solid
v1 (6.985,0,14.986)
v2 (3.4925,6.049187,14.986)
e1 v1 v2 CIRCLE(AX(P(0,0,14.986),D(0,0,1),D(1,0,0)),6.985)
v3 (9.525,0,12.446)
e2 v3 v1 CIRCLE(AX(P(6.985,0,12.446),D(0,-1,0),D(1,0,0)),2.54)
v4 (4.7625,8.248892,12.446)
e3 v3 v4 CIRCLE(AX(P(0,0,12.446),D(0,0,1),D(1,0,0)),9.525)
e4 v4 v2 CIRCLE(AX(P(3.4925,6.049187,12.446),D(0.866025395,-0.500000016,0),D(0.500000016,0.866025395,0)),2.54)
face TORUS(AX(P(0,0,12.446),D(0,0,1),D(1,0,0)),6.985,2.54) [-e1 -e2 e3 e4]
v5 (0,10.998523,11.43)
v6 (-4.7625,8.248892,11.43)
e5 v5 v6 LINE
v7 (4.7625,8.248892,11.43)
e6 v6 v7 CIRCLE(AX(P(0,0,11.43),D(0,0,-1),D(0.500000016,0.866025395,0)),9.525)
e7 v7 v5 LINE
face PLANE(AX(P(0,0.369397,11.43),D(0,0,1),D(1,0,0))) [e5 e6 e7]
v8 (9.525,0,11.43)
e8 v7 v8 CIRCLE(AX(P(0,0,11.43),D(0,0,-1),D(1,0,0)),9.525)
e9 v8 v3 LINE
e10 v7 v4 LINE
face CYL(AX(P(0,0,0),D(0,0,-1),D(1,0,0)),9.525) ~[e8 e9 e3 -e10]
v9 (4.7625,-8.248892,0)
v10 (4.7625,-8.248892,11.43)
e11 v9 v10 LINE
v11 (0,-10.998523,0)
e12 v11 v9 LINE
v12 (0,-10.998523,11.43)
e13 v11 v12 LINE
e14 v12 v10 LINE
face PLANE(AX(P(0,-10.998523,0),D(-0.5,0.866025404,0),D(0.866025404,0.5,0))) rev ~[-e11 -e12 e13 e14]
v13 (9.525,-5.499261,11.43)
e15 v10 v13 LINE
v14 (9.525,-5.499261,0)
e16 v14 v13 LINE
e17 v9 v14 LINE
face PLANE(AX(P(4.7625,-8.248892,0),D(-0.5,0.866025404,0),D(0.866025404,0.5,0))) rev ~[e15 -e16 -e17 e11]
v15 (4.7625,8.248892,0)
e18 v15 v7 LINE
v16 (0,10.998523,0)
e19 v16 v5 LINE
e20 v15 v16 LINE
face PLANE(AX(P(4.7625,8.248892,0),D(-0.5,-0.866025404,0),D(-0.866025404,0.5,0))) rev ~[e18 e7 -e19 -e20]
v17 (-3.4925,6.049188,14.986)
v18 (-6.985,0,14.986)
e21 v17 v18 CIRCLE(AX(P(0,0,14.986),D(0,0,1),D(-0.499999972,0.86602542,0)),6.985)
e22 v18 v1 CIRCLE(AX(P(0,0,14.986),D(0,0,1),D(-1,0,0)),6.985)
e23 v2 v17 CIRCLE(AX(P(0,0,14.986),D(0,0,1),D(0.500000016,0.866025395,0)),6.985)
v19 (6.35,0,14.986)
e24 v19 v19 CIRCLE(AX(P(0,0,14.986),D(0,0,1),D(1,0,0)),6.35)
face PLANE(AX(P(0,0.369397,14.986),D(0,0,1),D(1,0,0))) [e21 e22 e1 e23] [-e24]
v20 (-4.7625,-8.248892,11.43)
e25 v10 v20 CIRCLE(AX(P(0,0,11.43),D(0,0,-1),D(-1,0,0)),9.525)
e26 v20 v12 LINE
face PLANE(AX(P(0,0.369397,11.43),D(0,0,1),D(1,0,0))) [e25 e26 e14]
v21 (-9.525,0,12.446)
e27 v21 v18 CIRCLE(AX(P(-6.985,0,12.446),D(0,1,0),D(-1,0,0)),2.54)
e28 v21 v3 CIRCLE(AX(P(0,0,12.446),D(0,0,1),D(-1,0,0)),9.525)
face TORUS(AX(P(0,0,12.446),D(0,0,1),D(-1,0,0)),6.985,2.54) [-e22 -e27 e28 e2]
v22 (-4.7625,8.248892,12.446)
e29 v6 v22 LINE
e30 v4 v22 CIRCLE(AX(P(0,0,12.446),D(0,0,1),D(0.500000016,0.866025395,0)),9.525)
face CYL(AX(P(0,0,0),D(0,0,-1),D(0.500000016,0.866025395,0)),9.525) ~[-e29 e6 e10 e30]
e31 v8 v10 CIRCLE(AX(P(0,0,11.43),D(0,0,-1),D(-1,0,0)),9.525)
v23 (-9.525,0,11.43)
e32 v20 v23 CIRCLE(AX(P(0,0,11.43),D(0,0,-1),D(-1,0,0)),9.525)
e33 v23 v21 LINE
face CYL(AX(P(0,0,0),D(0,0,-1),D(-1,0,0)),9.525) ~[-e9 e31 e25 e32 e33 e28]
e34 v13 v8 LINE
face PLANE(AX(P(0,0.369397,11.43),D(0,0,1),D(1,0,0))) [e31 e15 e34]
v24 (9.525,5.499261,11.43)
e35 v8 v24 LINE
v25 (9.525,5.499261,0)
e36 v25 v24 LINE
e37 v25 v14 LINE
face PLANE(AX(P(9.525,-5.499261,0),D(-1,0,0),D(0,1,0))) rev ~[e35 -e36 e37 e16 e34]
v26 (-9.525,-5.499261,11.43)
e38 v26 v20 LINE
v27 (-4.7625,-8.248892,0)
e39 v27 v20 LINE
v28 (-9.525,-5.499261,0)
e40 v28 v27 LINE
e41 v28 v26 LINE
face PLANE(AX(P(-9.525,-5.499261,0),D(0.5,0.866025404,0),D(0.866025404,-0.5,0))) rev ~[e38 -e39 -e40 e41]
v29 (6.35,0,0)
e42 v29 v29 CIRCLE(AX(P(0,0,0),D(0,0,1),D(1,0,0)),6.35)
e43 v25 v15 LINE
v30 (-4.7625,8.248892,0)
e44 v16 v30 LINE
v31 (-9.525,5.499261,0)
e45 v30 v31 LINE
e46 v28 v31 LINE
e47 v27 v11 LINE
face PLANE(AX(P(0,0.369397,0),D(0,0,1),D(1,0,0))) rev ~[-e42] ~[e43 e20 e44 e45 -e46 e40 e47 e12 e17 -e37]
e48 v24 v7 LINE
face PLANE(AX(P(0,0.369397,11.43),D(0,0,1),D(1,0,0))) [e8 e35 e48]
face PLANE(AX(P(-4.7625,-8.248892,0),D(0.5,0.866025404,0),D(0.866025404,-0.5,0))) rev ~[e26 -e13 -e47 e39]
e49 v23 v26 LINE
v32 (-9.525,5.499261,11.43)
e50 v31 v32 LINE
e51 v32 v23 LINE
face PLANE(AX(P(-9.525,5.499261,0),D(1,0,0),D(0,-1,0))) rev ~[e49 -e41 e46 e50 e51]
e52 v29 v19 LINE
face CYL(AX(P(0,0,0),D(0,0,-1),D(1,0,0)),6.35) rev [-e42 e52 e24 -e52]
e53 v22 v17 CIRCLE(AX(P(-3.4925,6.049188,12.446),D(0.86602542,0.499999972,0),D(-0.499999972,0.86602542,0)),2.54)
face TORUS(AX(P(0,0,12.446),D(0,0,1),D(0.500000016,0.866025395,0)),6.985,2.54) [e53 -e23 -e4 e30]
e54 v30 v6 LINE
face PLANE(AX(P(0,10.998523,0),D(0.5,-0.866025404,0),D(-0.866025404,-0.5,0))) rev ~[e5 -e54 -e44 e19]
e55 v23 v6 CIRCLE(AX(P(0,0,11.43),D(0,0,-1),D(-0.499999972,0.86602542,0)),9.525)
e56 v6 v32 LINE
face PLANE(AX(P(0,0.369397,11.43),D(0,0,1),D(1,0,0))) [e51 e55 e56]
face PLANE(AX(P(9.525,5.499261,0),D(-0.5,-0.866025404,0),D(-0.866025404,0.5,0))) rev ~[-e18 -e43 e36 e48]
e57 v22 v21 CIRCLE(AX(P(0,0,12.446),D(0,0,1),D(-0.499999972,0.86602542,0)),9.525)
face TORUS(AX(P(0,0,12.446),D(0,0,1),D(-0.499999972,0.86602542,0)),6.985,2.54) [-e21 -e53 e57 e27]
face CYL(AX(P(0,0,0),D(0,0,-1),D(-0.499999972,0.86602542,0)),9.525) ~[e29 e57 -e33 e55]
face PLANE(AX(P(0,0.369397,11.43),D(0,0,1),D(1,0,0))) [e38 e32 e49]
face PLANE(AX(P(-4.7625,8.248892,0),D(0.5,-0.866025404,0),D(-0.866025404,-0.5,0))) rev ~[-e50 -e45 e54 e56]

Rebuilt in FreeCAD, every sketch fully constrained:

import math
import FreeCAD as App
import Part
import Sketcher
Q = App.Units.Quantity


def edges_at(feature, points):
    """Names of the edges that pass closest to the given points."""
    edges = feature.Shape.Edges
    near = lambda p: min(range(len(edges)), key=lambda i: edges[i].distToShape(Part.Vertex(*p))[0])
    return sorted({f"Edge{near(p) + 1}" for p in points})

doc = App.newDocument("Part")
body = doc.addObject("PartDesign::Body", "Body")

# Sketch on XY plane
sketch1 = doc.addObject("Sketcher::SketchObject", "Sketch")
body.addObject(sketch1)
sketch1.AttachmentSupport = (doc.XY_Plane, [""])
sketch1.MapMode = "FlatFace"
sketch1.addGeometry(Part.LineSegment(App.Vector(4.7625, 8.248892, 0), App.Vector(0, 10.998523, 0)), False)
sketch1.addGeometry(Part.LineSegment(App.Vector(0, 10.998523, 0), App.Vector(-4.7625, 8.248892, 0)), False)
sketch1.addGeometry(Part.LineSegment(App.Vector(-4.7625, 8.248892, 0), App.Vector(-9.525, 5.499261, 0)), False)
sketch1.addGeometry(Part.LineSegment(App.Vector(-9.525, 5.499261, 0), App.Vector(-9.525, -5.499261, 0)), False)
sketch1.addGeometry(Part.LineSegment(App.Vector(-9.525, -5.499261, 0), App.Vector(-4.7625, -8.248892, 0)), False)
sketch1.addGeometry(Part.LineSegment(App.Vector(-4.7625, -8.248892, 0), App.Vector(0, -10.998523, 0)), False)
sketch1.addGeometry(Part.LineSegment(App.Vector(0, -10.998523, 0), App.Vector(4.7625, -8.248892, 0)), False)
sketch1.addGeometry(Part.LineSegment(App.Vector(4.7625, -8.248892, 0), App.Vector(9.525, -5.499261, 0)), False)
sketch1.addGeometry(Part.LineSegment(App.Vector(9.525, -5.499261, 0), App.Vector(9.525, 5.499261, 0)), False)
sketch1.addGeometry(Part.LineSegment(App.Vector(9.525, 5.499261, 0), App.Vector(4.7625, 8.248892, 0)), False)
sketch1.addGeometry(Part.Circle(App.Vector(0, 0, 0), App.Vector(0, 0, 1), 6.35), False)
sketch1.addConstraint(Sketcher.Constraint("Coincident", 0, 2, 1, 1))
sketch1.addConstraint(Sketcher.Constraint("Coincident", 1, 2, 2, 1))
sketch1.addConstraint(Sketcher.Constraint("Coincident", 2, 2, 3, 1))
sketch1.addConstraint(Sketcher.Constraint("Coincident", 3, 2, 4, 1))
sketch1.addConstraint(Sketcher.Constraint("Coincident", 4, 2, 5, 1))
sketch1.addConstraint(Sketcher.Constraint("Coincident", 5, 2, 6, 1))
sketch1.addConstraint(Sketcher.Constraint("Coincident", 6, 2, 7, 1))
sketch1.addConstraint(Sketcher.Constraint("Coincident", 7, 2, 8, 1))
sketch1.addConstraint(Sketcher.Constraint("Coincident", 8, 2, 9, 1))
sketch1.addConstraint(Sketcher.Constraint("Coincident", 9, 2, 0, 1))
sketch1.addConstraint(Sketcher.Constraint("Vertical", 3))
sketch1.addConstraint(Sketcher.Constraint("Vertical", 8))
sketch1.addConstraint(Sketcher.Constraint("Coincident", 10, 3, -1, 1))
sketch1.addConstraint(Sketcher.Constraint("Symmetric", 0, 2, 5, 2, -1, 1))
sketch1.addConstraint(Sketcher.Constraint("Symmetric", 1, 2, 6, 2, -1, 1))
sketch1.addConstraint(Sketcher.Constraint("Symmetric", 2, 2, 7, 2, -1, 1))
sketch1.addConstraint(Sketcher.Constraint("Symmetric", 4, 2, 9, 2, -1, 1))
sketch1.addConstraint(Sketcher.Constraint("Symmetric", 4, 2, 6, 2, -2))
sketch1.addConstraint(Sketcher.Constraint("PointOnObject", 0, 2, -2))
sketch1.addConstraint(Sketcher.Constraint("Parallel", 1, 2))
sketch1.addConstraint(Sketcher.Constraint("Parallel", 0, 4))
sketch1.addConstraint(Sketcher.Constraint("Parallel", 5, 9))
sketch1.addConstraint(Sketcher.Constraint("Equal", 1, 2))
sketch1.addConstraint(Sketcher.Constraint("Diameter", 10, Q("0.5 in")))
sketch1.addConstraint(Sketcher.Constraint("Angle", 0, Q("150 deg")))
sketch1.addConstraint(Sketcher.Constraint("DistanceX", 1, 2, -1, 1, Q("0.1875 in")))
sketch1.addConstraint(Sketcher.Constraint("DistanceY", 3, 2, 3, 1, Q("10.998523 mm")))
pad1 = doc.addObject("PartDesign::Pad", "Pad")
body.addObject(pad1)
pad1.Profile = sketch1
pad1.Length = Q("0.45 in")

# Sketch on XY plane
sketch2 = doc.addObject("Sketcher::SketchObject", "Sketch001")
body.addObject(sketch2)
sketch2.AttachmentSupport = (doc.XY_Plane, [""])
sketch2.MapMode = "FlatFace"
sketch2.addGeometry(Part.ArcOfCircle(Part.Circle(App.Vector(0, 0, 0), App.Vector(0, 0, 1), 9.525), math.radians(0), math.radians(59.999999)), False)
sketch2.addGeometry(Part.ArcOfCircle(Part.Circle(App.Vector(0, 0, 0), App.Vector(0, 0, 1), 9.525), math.radians(59.999999), math.radians(119.999998)), False)
sketch2.addGeometry(Part.ArcOfCircle(Part.Circle(App.Vector(0, 0, 0), App.Vector(0, 0, 1), 9.525), math.radians(119.999998), math.radians(180)), False)
sketch2.addGeometry(Part.ArcOfCircle(Part.Circle(App.Vector(0, 0, 0), App.Vector(0, 0, 1), 9.525), math.radians(180), math.radians(360)), False)
sketch2.addGeometry(Part.Circle(App.Vector(0, 0, 0), App.Vector(0, 0, 1), 6.35), False)
sketch2.addConstraint(Sketcher.Constraint("Tangent", 0, 2, 1, 1))
sketch2.addConstraint(Sketcher.Constraint("Tangent", 1, 2, 2, 1))
sketch2.addConstraint(Sketcher.Constraint("Tangent", 2, 2, 3, 1))
sketch2.addConstraint(Sketcher.Constraint("Tangent", 3, 2, 0, 1))
sketch2.addConstraint(Sketcher.Constraint("Coincident", 0, 3, -1, 1))
sketch2.addConstraint(Sketcher.Constraint("Coincident", 4, 3, -1, 1))
sketch2.addConstraint(Sketcher.Constraint("Equal", 0, 1))
sketch2.addConstraint(Sketcher.Constraint("PointOnObject", 2, 2, -1))
sketch2.addConstraint(Sketcher.Constraint("PointOnObject", 3, 2, -1))
sketch2.addConstraint(Sketcher.Constraint("Horizontal", 0, 2, 1, 2))
sketch2.addConstraint(Sketcher.Constraint("Diameter", 4, Q("0.5 in")))
sketch2.addConstraint(Sketcher.Constraint("Radius", 0, Q("0.375 in")))
sketch2.addConstraint(Sketcher.Constraint("DistanceX", -1, 1, 0, 2, Q("0.1875 in")))
pad2 = doc.addObject("PartDesign::Pad", "Pad001")
body.addObject(pad2)
pad2.Profile = sketch2
pad2.Length = Q("0.59 in")
doc.recompute()

fillet = doc.addObject("PartDesign::Fillet", "Fillet")
body.addObject(fillet)
fillet.Base = (pad2, edges_at(pad2, [(0, -9.525, 14.986)]))
fillet.Radius = Q("0.1 in")

doc.recompute()
